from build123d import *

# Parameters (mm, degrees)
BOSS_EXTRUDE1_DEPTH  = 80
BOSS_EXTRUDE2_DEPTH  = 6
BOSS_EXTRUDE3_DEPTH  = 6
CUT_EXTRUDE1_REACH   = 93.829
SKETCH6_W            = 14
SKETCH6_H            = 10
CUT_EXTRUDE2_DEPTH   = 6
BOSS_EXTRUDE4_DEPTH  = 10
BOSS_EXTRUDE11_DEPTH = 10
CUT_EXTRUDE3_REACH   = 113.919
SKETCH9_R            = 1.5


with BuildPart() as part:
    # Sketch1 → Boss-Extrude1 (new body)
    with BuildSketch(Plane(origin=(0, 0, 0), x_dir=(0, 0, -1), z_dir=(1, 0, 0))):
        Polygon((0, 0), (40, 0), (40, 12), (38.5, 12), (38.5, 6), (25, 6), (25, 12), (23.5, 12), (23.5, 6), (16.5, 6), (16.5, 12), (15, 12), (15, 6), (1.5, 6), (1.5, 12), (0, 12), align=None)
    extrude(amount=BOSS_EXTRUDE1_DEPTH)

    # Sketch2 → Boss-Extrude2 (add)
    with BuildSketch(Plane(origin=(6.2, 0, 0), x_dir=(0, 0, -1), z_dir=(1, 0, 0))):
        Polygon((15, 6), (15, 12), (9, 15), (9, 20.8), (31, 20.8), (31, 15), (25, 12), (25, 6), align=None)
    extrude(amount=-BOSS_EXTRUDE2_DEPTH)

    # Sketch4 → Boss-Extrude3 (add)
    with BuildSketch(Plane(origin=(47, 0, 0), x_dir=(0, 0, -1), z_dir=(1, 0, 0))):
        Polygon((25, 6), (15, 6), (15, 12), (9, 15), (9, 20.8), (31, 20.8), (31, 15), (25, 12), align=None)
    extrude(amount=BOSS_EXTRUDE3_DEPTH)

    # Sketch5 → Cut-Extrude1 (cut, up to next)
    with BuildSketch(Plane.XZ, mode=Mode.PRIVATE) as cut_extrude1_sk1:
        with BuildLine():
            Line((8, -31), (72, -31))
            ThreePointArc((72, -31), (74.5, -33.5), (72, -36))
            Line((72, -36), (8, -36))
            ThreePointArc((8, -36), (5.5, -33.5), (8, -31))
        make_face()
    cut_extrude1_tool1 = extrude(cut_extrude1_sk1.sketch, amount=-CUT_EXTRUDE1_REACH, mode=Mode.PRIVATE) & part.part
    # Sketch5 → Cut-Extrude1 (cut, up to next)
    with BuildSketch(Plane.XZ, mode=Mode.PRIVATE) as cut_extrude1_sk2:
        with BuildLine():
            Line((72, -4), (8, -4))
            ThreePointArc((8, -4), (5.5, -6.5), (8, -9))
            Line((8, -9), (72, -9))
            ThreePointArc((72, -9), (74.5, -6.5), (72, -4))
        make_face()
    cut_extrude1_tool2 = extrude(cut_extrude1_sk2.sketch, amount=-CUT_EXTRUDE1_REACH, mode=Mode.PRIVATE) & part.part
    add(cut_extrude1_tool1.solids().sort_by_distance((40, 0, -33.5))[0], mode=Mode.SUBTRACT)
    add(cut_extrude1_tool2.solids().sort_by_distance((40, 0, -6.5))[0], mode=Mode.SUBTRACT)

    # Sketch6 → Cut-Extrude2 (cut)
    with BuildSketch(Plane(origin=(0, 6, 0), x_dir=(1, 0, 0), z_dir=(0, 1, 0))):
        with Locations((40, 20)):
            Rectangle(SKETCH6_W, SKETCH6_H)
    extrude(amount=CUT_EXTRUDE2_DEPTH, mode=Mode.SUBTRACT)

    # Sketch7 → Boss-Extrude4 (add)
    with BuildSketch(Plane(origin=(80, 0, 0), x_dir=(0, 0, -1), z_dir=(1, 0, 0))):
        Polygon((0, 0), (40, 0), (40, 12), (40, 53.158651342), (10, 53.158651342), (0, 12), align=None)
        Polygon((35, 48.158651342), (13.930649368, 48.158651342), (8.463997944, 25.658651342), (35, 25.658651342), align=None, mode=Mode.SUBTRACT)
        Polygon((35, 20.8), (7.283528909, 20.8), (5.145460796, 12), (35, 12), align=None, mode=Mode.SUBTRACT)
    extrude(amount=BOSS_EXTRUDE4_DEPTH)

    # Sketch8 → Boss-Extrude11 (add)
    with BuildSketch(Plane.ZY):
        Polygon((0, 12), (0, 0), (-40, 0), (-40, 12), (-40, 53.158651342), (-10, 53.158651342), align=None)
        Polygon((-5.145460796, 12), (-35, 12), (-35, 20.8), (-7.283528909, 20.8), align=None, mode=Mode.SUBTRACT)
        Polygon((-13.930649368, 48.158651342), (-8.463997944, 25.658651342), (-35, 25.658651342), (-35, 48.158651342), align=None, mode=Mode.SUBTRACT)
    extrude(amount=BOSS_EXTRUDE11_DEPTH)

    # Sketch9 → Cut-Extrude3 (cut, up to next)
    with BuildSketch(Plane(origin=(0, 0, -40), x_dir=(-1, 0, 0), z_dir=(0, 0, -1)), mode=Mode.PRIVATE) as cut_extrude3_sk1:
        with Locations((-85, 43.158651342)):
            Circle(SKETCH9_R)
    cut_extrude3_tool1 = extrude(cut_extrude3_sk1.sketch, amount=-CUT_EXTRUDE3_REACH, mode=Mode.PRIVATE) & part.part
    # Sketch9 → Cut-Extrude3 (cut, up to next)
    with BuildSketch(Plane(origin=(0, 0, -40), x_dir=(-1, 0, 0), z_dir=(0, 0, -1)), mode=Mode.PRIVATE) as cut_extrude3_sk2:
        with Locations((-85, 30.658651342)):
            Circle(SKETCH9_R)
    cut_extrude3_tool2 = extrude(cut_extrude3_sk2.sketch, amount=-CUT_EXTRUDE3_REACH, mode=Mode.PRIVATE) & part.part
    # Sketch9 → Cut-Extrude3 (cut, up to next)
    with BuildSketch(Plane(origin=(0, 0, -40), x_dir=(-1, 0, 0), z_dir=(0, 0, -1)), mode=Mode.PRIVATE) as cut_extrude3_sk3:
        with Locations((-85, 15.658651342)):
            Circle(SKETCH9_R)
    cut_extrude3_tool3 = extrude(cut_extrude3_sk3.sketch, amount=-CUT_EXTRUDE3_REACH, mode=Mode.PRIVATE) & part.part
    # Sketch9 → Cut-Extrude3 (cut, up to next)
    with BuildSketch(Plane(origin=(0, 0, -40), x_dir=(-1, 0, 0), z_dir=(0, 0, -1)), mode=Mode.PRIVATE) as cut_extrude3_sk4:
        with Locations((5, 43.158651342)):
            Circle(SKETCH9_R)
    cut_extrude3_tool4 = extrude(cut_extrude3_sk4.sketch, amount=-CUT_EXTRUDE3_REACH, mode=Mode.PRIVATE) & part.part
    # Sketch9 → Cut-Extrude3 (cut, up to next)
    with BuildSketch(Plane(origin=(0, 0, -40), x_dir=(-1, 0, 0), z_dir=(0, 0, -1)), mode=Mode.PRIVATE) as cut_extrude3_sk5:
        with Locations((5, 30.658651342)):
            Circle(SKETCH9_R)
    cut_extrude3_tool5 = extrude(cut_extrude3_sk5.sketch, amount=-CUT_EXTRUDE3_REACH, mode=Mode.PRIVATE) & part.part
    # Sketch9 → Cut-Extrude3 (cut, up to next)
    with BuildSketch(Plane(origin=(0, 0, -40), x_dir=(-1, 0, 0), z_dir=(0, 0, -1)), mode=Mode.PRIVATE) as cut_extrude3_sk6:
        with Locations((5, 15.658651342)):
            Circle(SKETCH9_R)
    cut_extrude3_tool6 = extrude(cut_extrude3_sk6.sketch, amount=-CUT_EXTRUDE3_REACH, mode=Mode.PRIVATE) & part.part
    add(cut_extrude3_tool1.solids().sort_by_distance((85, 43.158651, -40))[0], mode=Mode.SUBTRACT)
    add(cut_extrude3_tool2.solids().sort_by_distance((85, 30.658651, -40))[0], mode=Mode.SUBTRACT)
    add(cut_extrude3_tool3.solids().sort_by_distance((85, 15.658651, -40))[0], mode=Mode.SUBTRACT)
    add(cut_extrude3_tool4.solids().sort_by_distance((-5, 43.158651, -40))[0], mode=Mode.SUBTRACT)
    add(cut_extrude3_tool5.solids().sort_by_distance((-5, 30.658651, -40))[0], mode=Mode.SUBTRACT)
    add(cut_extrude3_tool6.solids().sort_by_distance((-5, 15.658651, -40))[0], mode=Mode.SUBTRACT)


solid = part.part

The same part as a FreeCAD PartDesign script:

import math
import FreeCAD as App
import Part
import Sketcher

V = App.Vector
Q = App.Units.Quantity


def add_polygon(sketch, points):
    """Adds a closed chain of lines whose ends are joined by coincident constraints."""
    first, n = sketch.GeometryCount, len(points)
    for a, b in zip(points, points[1:] + points[:1]):
        sketch.addGeometry(Part.LineSegment(App.Vector(*a, 0), App.Vector(*b, 0)), False)
    for i in range(n):
        sketch.addConstraint(Sketcher.Constraint("Coincident", first + i, 2, first + (i + 1) % n, 1))

doc = App.newDocument("Part")
body = doc.addObject("PartDesign::Body", "Body")

sketch1 = doc.addObject("Sketcher::SketchObject", "Sketch")
body.addObject(sketch1)
sketch1.AttachmentSupport = (doc.YZ_Plane, [""])
sketch1.MapMode = "FlatFace"
add_polygon(sketch1, [(0, 0), (0, -40), (12, -40), (12, -38.5), (6, -38.5), (6, -25), (12, -25), (12, -23.5), (6, -23.5), (6, -16.5), (12, -16.5), (12, -15), (6, -15), (6, -1.5), (12, -1.5), (12, 0)])
sketch1.addConstraint([
    Sketcher.Constraint("Vertical", 0),
    Sketcher.Constraint("Horizontal", 1),
    Sketcher.Constraint("Vertical", 2),
    Sketcher.Constraint("Horizontal", 3),
    Sketcher.Constraint("Vertical", 4),
    Sketcher.Constraint("Horizontal", 5),
    Sketcher.Constraint("Vertical", 6),
    Sketcher.Constraint("Horizontal", 7),
    Sketcher.Constraint("Vertical", 8),
    Sketcher.Constraint("Horizontal", 9),
    Sketcher.Constraint("Vertical", 10),
    Sketcher.Constraint("Horizontal", 11),
    Sketcher.Constraint("Vertical", 12),
    Sketcher.Constraint("Horizontal", 13),
    Sketcher.Constraint("Vertical", 14),
    Sketcher.Constraint("Horizontal", 15),
    Sketcher.Constraint("Coincident", 15, 2, -1, 1),
    Sketcher.Constraint("Vertical", 2, 2, 5, 2),
    Sketcher.Constraint("Vertical", 4, 2, 7, 2),
    Sketcher.Constraint("Vertical", 6, 2, 9, 2),
    Sketcher.Constraint("Vertical", 8, 2, 11, 2),
    Sketcher.Constraint("Vertical", 10, 2, 13, 2),
    Sketcher.Constraint("Equal", 2, 6),
    Sketcher.Constraint("Equal", 6, 10),
    Sketcher.Constraint("Equal", 4, 12),
    Sketcher.Constraint("Equal", 10, 14),
    Sketcher.Constraint("DistanceX", 1, 1, 1, 2, Q("12 mm")),
    Sketcher.Constraint("DistanceX", 3, 2, 3, 1, Q("6 mm")),
    Sketcher.Constraint("DistanceY", 0, 2, 0, 1, Q("40 mm")),
    Sketcher.Constraint("DistanceY", 8, 1, 8, 2, Q("7 mm")),
    Sketcher.Constraint("DistanceY", 2, 1, 2, 2, Q("1.5 mm")),
])
pad1 = doc.addObject("PartDesign::Pad", "Pad")
body.addObject(pad1)
pad1.Profile = sketch1
pad1.Length = 80

sketch2 = doc.addObject("Sketcher::SketchObject", "Sketch001")
body.addObject(sketch2)
sketch2.AttachmentSupport = (doc.YZ_Plane, [""])
sketch2.MapMode = "FlatFace"
sketch2.AttachmentOffset = App.Placement(V(0, 0, 6.2), App.Rotation())
add_polygon(sketch2, [(12, -15), (6, -15), (6, -25), (12, -25), (15, -31), (21, -31), (21, -9), (15, -9)])
sketch2.addConstraint([
    Sketcher.Constraint("Horizontal", 0),
    Sketcher.Constraint("Vertical", 1),
    Sketcher.Constraint("Horizontal", 2),
    Sketcher.Constraint("Horizontal", 4),
    Sketcher.Constraint("Vertical", 5),
    Sketcher.Constraint("Horizontal", 6),
    Sketcher.Constraint("Vertical", 3, 2, 6, 2),
    Sketcher.Constraint("Vertical", 2, 2, 7, 2),
    Sketcher.Constraint("Equal", 3, 7),
    Sketcher.Constraint("DistanceX", 0, 2, 0, 1, Q("6 mm")),
    Sketcher.Constraint("DistanceY", 1, 2, 1, 1, Q("10 mm")),
    Sketcher.Constraint("DistanceY", 5, 1, 5, 2, Q("22 mm")),
    Sketcher.Constraint("DistanceX", 4, 1, 4, 2, Q("5.8 mm")),
    Sketcher.Constraint("DistanceX", -1, 1, 0, 2, Q("6 mm")),
    Sketcher.Constraint("DistanceY", 0, 2, -1, 1, Q("15 mm")),
    Sketcher.Constraint("DistanceX", -1, 1, 3, 2, Q("15 mm")),
])
pad2 = doc.addObject("PartDesign::Pad", "Pad001")
body.addObject(pad2)
pad2.Profile = sketch2
pad2.Length = 6
pad2.Reversed = True

sketch3 = doc.addObject("Sketcher::SketchObject", "Sketch002")
body.addObject(sketch3)
sketch3.AttachmentSupport = (doc.YZ_Plane, [""])
sketch3.MapMode = "FlatFace"
sketch3.AttachmentOffset = App.Placement(V(0, 0, 47), App.Rotation())
add_polygon(sketch3, [(6, -15), (6, -25), (12, -25), (15, -31), (21, -31), (21, -9), (15, -9), (12, -15)])
sketch3.addConstraint([
    Sketcher.Constraint("Vertical", 0),
    Sketcher.Constraint("Horizontal", 1),
    Sketcher.Constraint("Horizontal", 3),
    Sketcher.Constraint("Vertical", 4),
    Sketcher.Constraint("Horizontal", 5),
    Sketcher.Constraint("Horizontal", 7),
    Sketcher.Constraint("Vertical", 2, 2, 5, 2),
    Sketcher.Constraint("Vertical", 1, 2, 6, 2),
    Sketcher.Constraint("Equal", 2, 6),
    Sketcher.Constraint("DistanceX", 1, 1, 1, 2, Q("6 mm")),
    Sketcher.Constraint("DistanceY", 0, 2, 0, 1, Q("10 mm")),
    Sketcher.Constraint("DistanceY", 4, 1, 4, 2, Q("22 mm")),
    Sketcher.Constraint("DistanceX", 3, 1, 3, 2, Q("5.8 mm")),
    Sketcher.Constraint("DistanceX", -1, 1, 0, 2, Q("6 mm")),
    Sketcher.Constraint("DistanceY", 0, 2, -1, 1, Q("25 mm")),
    Sketcher.Constraint("DistanceX", -1, 1, 2, 2, Q("15 mm")),
])
pad3 = doc.addObject("PartDesign::Pad", "Pad002")
body.addObject(pad3)
pad3.Profile = sketch3
pad3.Length = 6

sketch4 = doc.addObject("Sketcher::SketchObject", "Sketch003")
body.addObject(sketch4)
sketch4.AttachmentSupport = (doc.XZ_Plane, [""])
sketch4.MapMode = "FlatFace"
sketch4.addGeometry([
    Part.LineSegment(V(72, -31, 0), V(8, -31, 0)),
    Part.ArcOfCircle(Part.Circle(V(8, -33.5, 0), V(0, 0, 1), 2.5), math.radians(90), math.radians(270)),
    Part.LineSegment(V(8, -36, 0), V(72, -36, 0)),
    Part.ArcOfCircle(Part.Circle(V(72, -33.5, 0), V(0, 0, 1), 2.5), math.radians(-90), math.radians(90)),
], False)
sketch4.addConstraint([
    Sketcher.Constraint("Tangent", 0, 2, 1, 1),
    Sketcher.Constraint("Tangent", 1, 2, 2, 1),
    Sketcher.Constraint("Tangent", 2, 2, 3, 1),
    Sketcher.Constraint("Tangent", 3, 2, 0, 1),
    Sketcher.Constraint("Horizontal", 0),
    Sketcher.Constraint("Horizontal", 2),
    Sketcher.Constraint("Radius", 1, Q("2.5 mm")),
    Sketcher.Constraint("DistanceX", 0, 2, 0, 1, Q("64 mm")),
    Sketcher.Constraint("DistanceX", -1, 1, 1, 3, Q("8 mm")),
    Sketcher.Constraint("DistanceY", 0, 2, -1, 1, Q("31 mm")),
])
pocket1 = doc.addObject("PartDesign::Pocket", "Pocket")
body.addObject(pocket1)
pocket1.Profile = sketch4
pocket1.Type = "UpToFirst"

sketch5 = doc.addObject("Sketcher::SketchObject", "Sketch004")
body.addObject(sketch5)
sketch5.AttachmentSupport = (doc.XZ_Plane, [""])
sketch5.MapMode = "FlatFace"
sketch5.addGeometry([
    Part.LineSegment(V(72, -4, 0), V(8, -4, 0)),
    Part.ArcOfCircle(Part.Circle(V(8, -6.5, 0), V(0, 0, 1), 2.5), math.radians(90), math.radians(270)),
    Part.LineSegment(V(8, -9, 0), V(72, -9, 0)),
    Part.ArcOfCircle(Part.Circle(V(72, -6.5, 0), V(0, 0, 1), 2.5), math.radians(-90), math.radians(90)),
], False)
sketch5.addConstraint([
    Sketcher.Constraint("Tangent", 0, 2, 1, 1),
    Sketcher.Constraint("Tangent", 1, 2, 2, 1),
    Sketcher.Constraint("Tangent", 2, 2, 3, 1),
    Sketcher.Constraint("Tangent", 3, 2, 0, 1),
    Sketcher.Constraint("Horizontal", 0),
    Sketcher.Constraint("Horizontal", 2),
    Sketcher.Constraint("Radius", 1, Q("2.5 mm")),
    Sketcher.Constraint("DistanceX", 0, 2, 0, 1, Q("64 mm")),
    Sketcher.Constraint("DistanceX", -1, 1, 1, 3, Q("8 mm")),
    Sketcher.Constraint("DistanceY", 0, 2, -1, 1, Q("4 mm")),
])
pocket2 = doc.addObject("PartDesign::Pocket", "Pocket001")
body.addObject(pocket2)
pocket2.Profile = sketch5
pocket2.Type = "UpToFirst"

sketch6 = doc.addObject("Sketcher::SketchObject", "Sketch005")
body.addObject(sketch6)
sketch6.AttachmentSupport = (doc.XZ_Plane, [""])
sketch6.MapMode = "FlatFace"
sketch6.AttachmentOffset = App.Placement(V(0, 0, -6), App.Rotation())
add_polygon(sketch6, [(33, -25), (33, -15), (47, -15), (47, -25)])
sketch6.addConstraint([
    Sketcher.Constraint("Vertical", 0),
    Sketcher.Constraint("Horizontal", 1),
    Sketcher.Constraint("Vertical", 2),
    Sketcher.Constraint("Horizontal", 3),
    Sketcher.Constraint("DistanceX", 1, 1, 1, 2, Q("14 mm")),
    Sketcher.Constraint("DistanceY", 0, 1, 0, 2, Q("10 mm")),
    Sketcher.Constraint("DistanceX", -1, 1, 0, 2, Q("33 mm")),
    Sketcher.Constraint("DistanceY", 0, 2, -1, 1, Q("15 mm")),
])
pocket3 = doc.addObject("PartDesign::Pocket", "Pocket002")
body.addObject(pocket3)
pocket3.Profile = sketch6
pocket3.Length = 6

sketch7 = doc.addObject("Sketcher::SketchObject", "Sketch006")
body.addObject(sketch7)
sketch7.AttachmentSupport = (doc.YZ_Plane, [""])
sketch7.MapMode = "FlatFace"
sketch7.AttachmentOffset = App.Placement(V(0, 0, 80), App.Rotation())
add_polygon(sketch7, [(0, 0), (0, -40), (53, -40), (53, -10), (12, 0)])
add_polygon(sketch7, [(21, -7), (21, -35), (12, -35), (12, -5)])
add_polygon(sketch7, [(48, -14), (48, -35), (26, -35), (26, -8)])
sketch7.addConstraint([
    Sketcher.Constraint("Vertical", 0),
    Sketcher.Constraint("Horizontal", 1),
    Sketcher.Constraint("Vertical", 2),
    Sketcher.Constraint("Horizontal", 4),
    Sketcher.Constraint("Vertical", 5),
    Sketcher.Constraint("Horizontal", 6),
    Sketcher.Constraint("Vertical", 7),
    Sketcher.Constraint("Vertical", 9),
    Sketcher.Constraint("Horizontal", 10),
    Sketcher.Constraint("Vertical", 11),
    Sketcher.Constraint("Coincident", 4, 2, -1, 1),
    Sketcher.Constraint("Parallel", 3, 8),
    Sketcher.Constraint("Parallel", 8, 12),
    Sketcher.Constraint("Horizontal", 6, 2, 9, 2),
    Sketcher.Constraint("Vertical", 3, 2, 6, 2),
    Sketcher.Constraint("DistanceX", 4, 2, 4, 1, Q("12 mm")),
    Sketcher.Constraint("DistanceY", 0, 2, 0, 1, Q("40 mm")),
    Sketcher.Constraint("DistanceY", 2, 1, 2, 2, Q("30 mm")),
    Sketcher.Constraint("DistanceX", 6, 2, 6, 1, Q("8.8 mm")),
    Sketcher.Constraint("DistanceX", 10, 2, 10, 1, Q("22.5 mm")),
    Sketcher.Constraint("DistanceY", 5, 2, -1, 1, Q("35 mm")),
    Sketcher.Constraint("DistanceX", 9, 2, 1, 2, Q("5 mm")),
    Sketcher.Constraint("DistanceX", 1, 1, 1, 2, Q("53.158651 mm")),
    Sketcher.Constraint("DistanceY", 5, 2, 5, 1, Q("27.716471 mm")),
    Sketcher.Constraint("DistanceY", 9, 2, 9, 1, Q("21.069351 mm")),
])
pad4 = doc.addObject("PartDesign::Pad", "Pad003")
body.addObject(pad4)
pad4.Profile = sketch7
pad4.Length = 10

sketch8 = doc.addObject("Sketcher::SketchObject", "Sketch007")
body.addObject(sketch8)
sketch8.AttachmentSupport = (doc.YZ_Plane, [""])
sketch8.MapMode = "FlatFace"
add_polygon(sketch8, [(0, 0), (12, 0), (53, -10), (53, -40), (0, -40)])
add_polygon(sketch8, [(12, -5), (12, -35), (21, -35), (21, -7)])
add_polygon(sketch8, [(48, -14), (26, -8), (26, -35), (48, -35)])
sketch8.addConstraint([
    Sketcher.Constraint("Horizontal", 0),
    Sketcher.Constraint("Vertical", 2),
    Sketcher.Constraint("Horizontal", 3),
    Sketcher.Constraint("Vertical", 4),
    Sketcher.Constraint("Vertical", 5),
    Sketcher.Constraint("Horizontal", 6),
    Sketcher.Constraint("Vertical", 7),
    Sketcher.Constraint("Vertical", 10),
    Sketcher.Constraint("Horizontal", 11),
    Sketcher.Constraint("Vertical", 12),
    Sketcher.Constraint("Coincident", 4, 2, -1, 1),
    Sketcher.Constraint("Parallel", 1, 8),
    Sketcher.Constraint("Parallel", 8, 9),
    Sketcher.Constraint("Horizontal", 6, 2, 10, 2),
    Sketcher.Constraint("Vertical", 0, 2, 5, 2),
    Sketcher.Constraint("DistanceX", 0, 1, 0, 2, Q("12 mm")),
    Sketcher.Constraint("DistanceY", 2, 2, 2, 1, Q("30 mm")),
    Sketcher.Constraint("DistanceY", 4, 1, 4, 2, Q("40 mm")),
    Sketcher.Constraint("DistanceX", 6, 1, 6, 2, Q("8.8 mm")),
    Sketcher.Constraint("DistanceX", 11, 1, 11, 2, Q("22.5 mm")),
    Sketcher.Constraint("DistanceY", 5, 2, -1, 1, Q("35 mm")),
    Sketcher.Constraint("DistanceX", 11, 2, 2, 2, Q("5 mm")),
    Sketcher.Constraint("DistanceX", 3, 2, 3, 1, Q("53.158651 mm")),
    Sketcher.Constraint("DistanceY", 5, 2, 5, 1, Q("29.854539 mm")),
    Sketcher.Constraint("DistanceY", 12, 1, 12, 2, Q("21.069351 mm")),
])
pad5 = doc.addObject("PartDesign::Pad", "Pad004")
body.addObject(pad5)
pad5.Profile = sketch8
pad5.Length = 10
pad5.Reversed = True

sketch9 = doc.addObject("Sketcher::SketchObject", "Sketch008")
body.addObject(sketch9)
sketch9.AttachmentSupport = (doc.XY_Plane, [""])
sketch9.MapMode = "FlatFace"
sketch9.AttachmentOffset = App.Placement(V(0, 0, -40), App.Rotation())
sketch9.addGeometry(Part.Circle(V(85, 43.2, 0), V(0, 0, 1), 1.5), False)
sketch9.addConstraint([
    Sketcher.Constraint("Diameter", 0, Q("3 mm")),
    Sketcher.Constraint("DistanceX", -1, 1, 0, 3, Q("85 mm")),
    Sketcher.Constraint("DistanceY", -1, 1, 0, 3, Q("43.158651 mm")),
])
pocket4 = doc.addObject("PartDesign::Pocket", "Pocket003")
body.addObject(pocket4)
pocket4.Profile = sketch9
pocket4.Type = "UpToFirst"
pocket4.Reversed = True

sketch10 = doc.addObject("Sketcher::SketchObject", "Sketch009")
body.addObject(sketch10)
sketch10.AttachmentSupport = (doc.XY_Plane, [""])
sketch10.MapMode = "FlatFace"
sketch10.AttachmentOffset = App.Placement(V(0, 0, -40), App.Rotation())
sketch10.addGeometry(Part.Circle(V(85, 30.7, 0), V(0, 0, 1), 1.5), False)
sketch10.addConstraint([
    Sketcher.Constraint("Diameter", 0, Q("3 mm")),
    Sketcher.Constraint("DistanceX", -1, 1, 0, 3, Q("85 mm")),
    Sketcher.Constraint("DistanceY", -1, 1, 0, 3, Q("30.658651 mm")),
])
pocket5 = doc.addObject("PartDesign::Pocket", "Pocket004")
body.addObject(pocket5)
pocket5.Profile = sketch10
pocket5.Type = "UpToFirst"
pocket5.Reversed = True

sketch11 = doc.addObject("Sketcher::SketchObject", "Sketch010")
body.addObject(sketch11)
sketch11.AttachmentSupport = (doc.XY_Plane, [""])
sketch11.MapMode = "FlatFace"
sketch11.AttachmentOffset = App.Placement(V(0, 0, -40), App.Rotation())
sketch11.addGeometry(Part.Circle(V(85, 15.7, 0), V(0, 0, 1), 1.5), False)
sketch11.addConstraint([
    Sketcher.Constraint("Diameter", 0, Q("3 mm")),
    Sketcher.Constraint("DistanceX", -1, 1, 0, 3, Q("85 mm")),
    Sketcher.Constraint("DistanceY", -1, 1, 0, 3, Q("15.658651 mm")),
])
pocket6 = doc.addObject("PartDesign::Pocket", "Pocket005")
body.addObject(pocket6)
pocket6.Profile = sketch11
pocket6.Type = "UpToFirst"
pocket6.Reversed = True

sketch12 = doc.addObject("Sketcher::SketchObject", "Sketch011")
body.addObject(sketch12)
sketch12.AttachmentSupport = (doc.XY_Plane, [""])
sketch12.MapMode = "FlatFace"
sketch12.AttachmentOffset = App.Placement(V(0, 0, -40), App.Rotation())
sketch12.addGeometry(Part.Circle(V(-5, 43.2, 0), V(0, 0, 1), 1.5), False)
sketch12.addConstraint([
    Sketcher.Constraint("Diameter", 0, Q("3 mm")),
    Sketcher.Constraint("DistanceX", 0, 3, -1, 1, Q("5 mm")),
    Sketcher.Constraint("DistanceY", -1, 1, 0, 3, Q("43.158651 mm")),
])
pocket7 = doc.addObject("PartDesign::Pocket", "Pocket006")
body.addObject(pocket7)
pocket7.Profile = sketch12
pocket7.Type = "UpToFirst"
pocket7.Reversed = True

sketch13 = doc.addObject("Sketcher::SketchObject", "Sketch012")
body.addObject(sketch13)
sketch13.AttachmentSupport = (doc.XY_Plane, [""])
sketch13.MapMode = "FlatFace"
sketch13.AttachmentOffset = App.Placement(V(0, 0, -40), App.Rotation())
sketch13.addGeometry(Part.Circle(V(-5, 30.7, 0), V(0, 0, 1), 1.5), False)
sketch13.addConstraint([
    Sketcher.Constraint("Diameter", 0, Q("3 mm")),
    Sketcher.Constraint("DistanceX", 0, 3, -1, 1, Q("5 mm")),
    Sketcher.Constraint("DistanceY", -1, 1, 0, 3, Q("30.658651 mm")),
])
pocket8 = doc.addObject("PartDesign::Pocket", "Pocket007")
body.addObject(pocket8)
pocket8.Profile = sketch13
pocket8.Type = "UpToFirst"
pocket8.Reversed = True

sketch14 = doc.addObject("Sketcher::SketchObject", "Sketch013")
body.addObject(sketch14)
sketch14.AttachmentSupport = (doc.XY_Plane, [""])
sketch14.MapMode = "FlatFace"
sketch14.AttachmentOffset = App.Placement(V(0, 0, -40), App.Rotation())
sketch14.addGeometry(Part.Circle(V(-5, 15.7, 0), V(0, 0, 1), 1.5), False)
sketch14.addConstraint([
    Sketcher.Constraint("Diameter", 0, Q("3 mm")),
    Sketcher.Constraint("DistanceX", 0, 3, -1, 1, Q("5 mm")),
    Sketcher.Constraint("DistanceY", -1, 1, 0, 3, Q("15.658651 mm")),
])
pocket9 = doc.addObject("PartDesign::Pocket", "Pocket008")
body.addObject(pocket9)
pocket9.Profile = sketch14
pocket9.Type = "UpToFirst"
pocket9.Reversed = True

doc.recompute()
